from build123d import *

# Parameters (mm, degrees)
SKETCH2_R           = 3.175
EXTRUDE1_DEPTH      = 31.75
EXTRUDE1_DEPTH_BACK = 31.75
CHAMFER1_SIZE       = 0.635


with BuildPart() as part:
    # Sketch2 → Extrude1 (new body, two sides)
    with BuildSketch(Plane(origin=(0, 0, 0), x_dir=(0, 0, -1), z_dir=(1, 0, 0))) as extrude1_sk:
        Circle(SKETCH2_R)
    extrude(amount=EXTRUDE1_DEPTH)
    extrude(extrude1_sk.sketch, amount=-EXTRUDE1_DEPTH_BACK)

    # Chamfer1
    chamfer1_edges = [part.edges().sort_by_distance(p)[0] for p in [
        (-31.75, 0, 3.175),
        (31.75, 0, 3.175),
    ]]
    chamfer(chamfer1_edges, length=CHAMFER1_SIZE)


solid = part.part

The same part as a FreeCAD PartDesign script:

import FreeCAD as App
import Part
import Sketcher
from FreeCAD import Vector
Q = App.Units.Quantity


def edges_at(feature, points):
    """Names of the edges that pass closest to the given points."""
    edges = feature.Shape.Edges
    near = lambda p: min(range(len(edges)), key=lambda i: edges[i].distToShape(Part.Vertex(*p))[0])
    return sorted({f"Edge{near(p) + 1}" for p in points})

doc = App.newDocument("Part")
body = doc.addObject("PartDesign::Body", "Body")

sketch1 = body.newObject("Sketcher::SketchObject", "Sketch")
sketch1.AttachmentSupport = (doc.getObject("YZ_Plane"), [""])
sketch1.MapMode = "FlatFace"
sketch1.addGeometry(Part.Circle(Vector(0, 0, 0), Vector(0, 0, 1), 3.2), False)
sketch1.addConstraint([
    Sketcher.Constraint("Coincident", 0, 3, -1, 1),
    Sketcher.Constraint("Diameter", 0, Q("0.25 in")),
])
pad1 = body.newObject("PartDesign::Pad", "Pad")
pad1.Profile = sketch1
pad1.Type = "TwoLengths"
pad1.Length = Q("1.25 in")
pad1.Length2 = Q("1.25 in")
doc.recompute()

chamfer = body.newObject("PartDesign::Chamfer", "Chamfer")
chamfer.Base = (pad1, edges_at(pad1, [(-31.75, 0, 3.175), (31.75, 0, 3.175)]))
chamfer.Size = Q("0.025 in")

doc.recompute()
